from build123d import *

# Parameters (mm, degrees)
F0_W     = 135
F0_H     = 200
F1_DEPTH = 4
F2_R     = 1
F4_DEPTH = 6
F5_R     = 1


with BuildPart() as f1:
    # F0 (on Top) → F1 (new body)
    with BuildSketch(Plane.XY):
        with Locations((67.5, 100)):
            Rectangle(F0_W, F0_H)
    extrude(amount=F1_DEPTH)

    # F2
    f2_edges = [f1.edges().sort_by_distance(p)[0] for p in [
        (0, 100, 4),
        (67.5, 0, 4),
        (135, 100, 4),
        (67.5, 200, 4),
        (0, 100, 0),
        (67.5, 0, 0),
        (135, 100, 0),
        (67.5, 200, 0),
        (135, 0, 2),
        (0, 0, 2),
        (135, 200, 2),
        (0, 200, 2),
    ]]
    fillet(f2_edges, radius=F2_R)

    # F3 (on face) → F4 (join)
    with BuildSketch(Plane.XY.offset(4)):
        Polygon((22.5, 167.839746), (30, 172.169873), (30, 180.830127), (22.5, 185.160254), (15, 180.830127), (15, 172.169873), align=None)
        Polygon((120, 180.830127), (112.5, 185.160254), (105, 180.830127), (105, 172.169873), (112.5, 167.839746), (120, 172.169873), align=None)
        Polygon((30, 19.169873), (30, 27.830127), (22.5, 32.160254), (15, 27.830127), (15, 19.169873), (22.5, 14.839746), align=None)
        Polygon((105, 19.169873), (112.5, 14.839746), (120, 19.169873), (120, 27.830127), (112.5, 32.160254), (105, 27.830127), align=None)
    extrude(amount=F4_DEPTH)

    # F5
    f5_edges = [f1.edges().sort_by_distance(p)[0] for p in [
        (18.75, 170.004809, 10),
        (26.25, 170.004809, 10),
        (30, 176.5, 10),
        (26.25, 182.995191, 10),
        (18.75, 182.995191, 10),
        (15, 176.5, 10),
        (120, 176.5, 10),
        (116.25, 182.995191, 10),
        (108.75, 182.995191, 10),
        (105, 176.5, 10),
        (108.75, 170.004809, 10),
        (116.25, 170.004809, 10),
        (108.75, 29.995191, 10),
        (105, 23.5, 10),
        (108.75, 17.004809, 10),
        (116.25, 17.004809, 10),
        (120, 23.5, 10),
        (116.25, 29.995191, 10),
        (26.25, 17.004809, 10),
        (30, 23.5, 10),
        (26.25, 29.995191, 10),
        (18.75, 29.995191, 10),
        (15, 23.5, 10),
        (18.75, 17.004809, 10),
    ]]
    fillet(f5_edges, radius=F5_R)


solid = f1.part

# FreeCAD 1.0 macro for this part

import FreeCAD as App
import Part
import Sketcher
Q = App.Units.Quantity


def edges_at(feature, points):
    """Names of the edges that pass closest to the given points."""
    edges = feature.Shape.Edges
    near = lambda p: min(range(len(edges)), key=lambda i: edges[i].distToShape(Part.Vertex(*p))[0])
    return sorted({f"Edge{near(p) + 1}" for p in points})

doc = App.newDocument("Part")
params = doc.addObject("Spreadsheet::Sheet", "Params")
for row, (alias, value) in enumerate([
    ("sketch1_width", "135 mm"),
    ("sketch1_height", "200 mm"),
    ("pad1_length", "4 mm"),
    ("fillet_radius", "1 mm"),
    ("pad2_length", "6 mm"),
    ("fillet2_radius", "1 mm"),
], start=1):
    params.set(f"A{row}", alias)
    params.set(f"B{row}", "=" + value)
    params.setAlias(f"B{row}", alias)

body = doc.addObject("PartDesign::Body", "Body")

# Sketch on XY plane
sketch1 = body.newObject("Sketcher::SketchObject", "Sketch")
sketch1.AttachmentSupport = (doc.getObject("XY_Plane"), [""])
sketch1.MapMode = "FlatFace"
sketch1.addGeometry([
    Part.LineSegment(App.Vector(0, 200, 0), App.Vector(0, 0, 0)),
    Part.LineSegment(App.Vector(0, 0, 0), App.Vector(135, 0, 0)),
    Part.LineSegment(App.Vector(135, 0, 0), App.Vector(135, 200, 0)),
    Part.LineSegment(App.Vector(135, 200, 0), App.Vector(0, 200, 0)),
], False)
sketch1.addConstraint([
    Sketcher.Constraint("Coincident", 0, 2, 1, 1),
    Sketcher.Constraint("Coincident", 1, 2, 2, 1),
    Sketcher.Constraint("Coincident", 2, 2, 3, 1),
    Sketcher.Constraint("Coincident", 3, 2, 0, 1),
    Sketcher.Constraint("Vertical", 0),
    Sketcher.Constraint("Horizontal", 1),
    Sketcher.Constraint("Vertical", 2),
    Sketcher.Constraint("Horizontal", 3),
    Sketcher.Constraint("Coincident", 0, 2, -1, 1),
    Sketcher.Constraint("DistanceX", 1, 1, 1, 2, Q("135 mm")),
    Sketcher.Constraint("DistanceY", 0, 2, 0, 1, Q("200 mm")),
])
sketch1.setExpression("Constraints[9]", "Params.sketch1_width")
sketch1.setExpression("Constraints[10]", "Params.sketch1_height")
pad1 = body.newObject("PartDesign::Pad", "Pad")
pad1.Profile = sketch1
pad1.setExpression("Length", "Params.pad1_length")
doc.recompute()

fillet = body.newObject("PartDesign::Fillet", "Fillet")
fillet.Base = (pad1, ["Edge1"])
fillet.UseAllEdges = True
fillet.setExpression("Radius", "Params.fillet_radius")

# Sketch on XY plane
sketch2 = body.newObject("Sketcher::SketchObject", "Sketch001")
sketch2.AttachmentSupport = (doc.getObject("XY_Plane"), [""])
sketch2.MapMode = "FlatFace"
sketch2.AttachmentOffset = App.Placement(App.Vector(0, 0, 4), App.Rotation())
sketch2.addGeometry([
    Part.LineSegment(App.Vector(22.5, 167.839746, 0), App.Vector(30, 172.169873, 0)),  # 0
    Part.LineSegment(App.Vector(30, 172.169873, 0), App.Vector(30, 180.830127, 0)),  # 1
    Part.LineSegment(App.Vector(30, 180.830127, 0), App.Vector(22.5, 185.160254, 0)),  # 2
    Part.LineSegment(App.Vector(22.5, 185.160254, 0), App.Vector(15, 180.830127, 0)),  # 3
    Part.LineSegment(App.Vector(15, 180.830127, 0), App.Vector(15, 172.169873, 0)),  # 4
    Part.LineSegment(App.Vector(15, 172.169873, 0), App.Vector(22.5, 167.839746, 0)),  # 5
    Part.LineSegment(App.Vector(120, 180.830127, 0), App.Vector(112.5, 185.160254, 0)),  # 6
    Part.LineSegment(App.Vector(112.5, 185.160254, 0), App.Vector(105, 180.830127, 0)),  # 7
    Part.LineSegment(App.Vector(105, 180.830127, 0), App.Vector(105, 172.169873, 0)),  # 8
    Part.LineSegment(App.Vector(105, 172.169873, 0), App.Vector(112.5, 167.839746, 0)),  # 9
    Part.LineSegment(App.Vector(112.5, 167.839746, 0), App.Vector(120, 172.169873, 0)),  # 10
    Part.LineSegment(App.Vector(120, 172.169873, 0), App.Vector(120, 180.830127, 0)),  # 11
    Part.LineSegment(App.Vector(30, 19.169873, 0), App.Vector(30, 27.830127, 0)),  # 12
    Part.LineSegment(App.Vector(30, 27.830127, 0), App.Vector(22.5, 32.160254, 0)),  # 13
    Part.LineSegment(App.Vector(22.5, 32.160254, 0), App.Vector(15, 27.830127, 0)),  # 14
    Part.LineSegment(App.Vector(15, 27.830127, 0), App.Vector(15, 19.169873, 0)),  # 15
    Part.LineSegment(App.Vector(15, 19.169873, 0), App.Vector(22.5, 14.839746, 0)),  # 16
    Part.LineSegment(App.Vector(22.5, 14.839746, 0), App.Vector(30, 19.169873, 0)),  # 17
    Part.LineSegment(App.Vector(105, 19.169873, 0), App.Vector(112.5, 14.839746, 0)),  # 18
    Part.LineSegment(App.Vector(112.5, 14.839746, 0), App.Vector(120, 19.169873, 0)),  # 19
    Part.LineSegment(App.Vector(120, 19.169873, 0), App.Vector(120, 27.830127, 0)),  # 20
    Part.LineSegment(App.Vector(120, 27.830127, 0), App.Vector(112.5, 32.160254, 0)),  # 21
    Part.LineSegment(App.Vector(112.5, 32.160254, 0), App.Vector(105, 27.830127, 0)),  # 22
    Part.LineSegment(App.Vector(105, 27.830127, 0), App.Vector(105, 19.169873, 0)),  # 23
], False)
sketch2.addConstraint([
    Sketcher.Constraint("Coincident", 0, 2, 1, 1),
    Sketcher.Constraint("Coincident", 1, 2, 2, 1),
    Sketcher.Constraint("Coincident", 2, 2, 3, 1),
    Sketcher.Constraint("Coincident", 3, 2, 4, 1),
    Sketcher.Constraint("Coincident", 4, 2, 5, 1),
    Sketcher.Constraint("Coincident", 5, 2, 0, 1),
    Sketcher.Constraint("Coincident", 6, 2, 7, 1),
    Sketcher.Constraint("Coincident", 7, 2, 8, 1),
    Sketcher.Constraint("Coincident", 8, 2, 9, 1),
    Sketcher.Constraint("Coincident", 9, 2, 10, 1),
    Sketcher.Constraint("Coincident", 10, 2, 11, 1),
    Sketcher.Constraint("Coincident", 11, 2, 6, 1),
    Sketcher.Constraint("Coincident", 12, 2, 13, 1),
    Sketcher.Constraint("Coincident", 13, 2, 14, 1),
    Sketcher.Constraint("Coincident", 14, 2, 15, 1),
    Sketcher.Constraint("Coincident", 15, 2, 16, 1),
    Sketcher.Constraint("Coincident", 16, 2, 17, 1),
    Sketcher.Constraint("Coincident", 17, 2, 12, 1),
    Sketcher.Constraint("Coincident", 18, 2, 19, 1),
    Sketcher.Constraint("Coincident", 19, 2, 20, 1),
    Sketcher.Constraint("Coincident", 20, 2, 21, 1),
    Sketcher.Constraint("Coincident", 21, 2, 22, 1),
    Sketcher.Constraint("Coincident", 22, 2, 23, 1),
    Sketcher.Constraint("Coincident", 23, 2, 18, 1),
    Sketcher.Constraint("Vertical", 1),
    Sketcher.Constraint("Vertical", 4),
    Sketcher.Constraint("Vertical", 8),
    Sketcher.Constraint("Vertical", 11),
    Sketcher.Constraint("Vertical", 12),
    Sketcher.Constraint("Vertical", 15),
    Sketcher.Constraint("Vertical", 20),
    Sketcher.Constraint("Vertical", 23),
    Sketcher.Constraint("Parallel", 0, 3),
    Sketcher.Constraint("Parallel", 2, 5),
    Sketcher.Constraint("Parallel", 5, 6),
    Sketcher.Constraint("Parallel", 3, 7),
    Sketcher.Constraint("Parallel", 6, 9),
    Sketcher.Constraint("Parallel", 7, 10),
    Sketcher.Constraint("Parallel", 9, 13),
    Sketcher.Constraint("Parallel", 10, 14),
    Sketcher.Constraint("Parallel", 13, 16),
    Sketcher.Constraint("Parallel", 14, 17),
    Sketcher.Constraint("Parallel", 16, 18),
    Sketcher.Constraint("Parallel", 17, 19),
    Sketcher.Constraint("Parallel", 18, 21),
    Sketcher.Constraint("Parallel", 19, 22),
    Sketcher.Constraint("Horizontal", 1, 2, 3, 2),
    Sketcher.Constraint("Horizontal", 0, 2, 4, 2),
    Sketcher.Constraint("Horizontal", 2, 2, 6, 2),
    Sketcher.Constraint("Horizontal", 3, 2, 7, 2),
    Sketcher.Constraint("Horizontal", 4, 2, 8, 2),
    Sketcher.Constraint("Horizontal", 5, 2, 9, 2),
    Sketcher.Constraint("Horizontal", 8, 2, 10, 2),
    Sketcher.Constraint("Horizontal", 12, 2, 14, 2),
    Sketcher.Constraint("Horizontal", 15, 2, 17, 2),
    Sketcher.Constraint("Horizontal", 16, 2, 18, 2),
    Sketcher.Constraint("Horizontal", 17, 2, 19, 2),
    Sketcher.Constraint("Horizontal", 14, 2, 20, 2),
    Sketcher.Constraint("Horizontal", 13, 2, 21, 2),
    Sketcher.Constraint("Horizontal", 20, 2, 22, 2),
    Sketcher.Constraint("Vertical", 2, 2, 5, 2),
    Sketcher.Constraint("Vertical", 1, 2, 12, 2),
    Sketcher.Constraint("Vertical", 5, 2, 13, 2),
    Sketcher.Constraint("Vertical", 9, 2, 18, 2),
    Sketcher.Constraint("Equal", 11, 12),
    Sketcher.Constraint("Angle", 0, Q("30 deg")),
    Sketcher.Constraint("DistanceX", -1, 1, 0, 2, Q("30 mm")),
    Sketcher.Constraint("DistanceX", -1, 1, 3, 2, Q("15 mm")),
    Sketcher.Constraint("DistanceX", -1, 1, 7, 2, Q("105 mm")),
    Sketcher.Constraint("DistanceY", 12, 2, 1, 2, Q("153 mm")),
    Sketcher.Constraint("DistanceY", 1, 1, 1, 2, Q("8.660254 mm")),
    Sketcher.Constraint("DistanceY", -1, 1, 0, 2, Q("172.169873 mm")),
])
pad2 = body.newObject("PartDesign::Pad", "Pad001")
pad2.Profile = sketch2
pad2.setExpression("Length", "Params.pad2_length")
doc.recompute()

fillet2 = body.newObject("PartDesign::Fillet", "Fillet001")
fillet2.Base = (pad2, edges_at(pad2, [
    (18.75, 170.005, 10),
    (26.25, 170.005, 10),
    (30, 176.5, 10),
    (26.25, 182.995, 10),
    (18.75, 182.995, 10),
    (15, 176.5, 10),
    (120, 176.5, 10),
    (116.25, 182.995, 10),
    (108.75, 182.995, 10),
    (105, 176.5, 10),
    (108.75, 170.005, 10),
    (116.25, 170.005, 10),
    (108.75, 29.995, 10),
    (105, 23.5, 10),
    (108.75, 17.005, 10),
    (116.25, 17.005, 10),
    (120, 23.5, 10),
    (116.25, 29.995, 10),
    (26.25, 17.005, 10),
    (30, 23.5, 10),
    (26.25, 29.995, 10),
    (18.75, 29.995, 10),
    (15, 23.5, 10),
    (18.75, 17.005, 10),
]))
fillet2.setExpression("Radius", "Params.fillet2_radius")

doc.recompute()
